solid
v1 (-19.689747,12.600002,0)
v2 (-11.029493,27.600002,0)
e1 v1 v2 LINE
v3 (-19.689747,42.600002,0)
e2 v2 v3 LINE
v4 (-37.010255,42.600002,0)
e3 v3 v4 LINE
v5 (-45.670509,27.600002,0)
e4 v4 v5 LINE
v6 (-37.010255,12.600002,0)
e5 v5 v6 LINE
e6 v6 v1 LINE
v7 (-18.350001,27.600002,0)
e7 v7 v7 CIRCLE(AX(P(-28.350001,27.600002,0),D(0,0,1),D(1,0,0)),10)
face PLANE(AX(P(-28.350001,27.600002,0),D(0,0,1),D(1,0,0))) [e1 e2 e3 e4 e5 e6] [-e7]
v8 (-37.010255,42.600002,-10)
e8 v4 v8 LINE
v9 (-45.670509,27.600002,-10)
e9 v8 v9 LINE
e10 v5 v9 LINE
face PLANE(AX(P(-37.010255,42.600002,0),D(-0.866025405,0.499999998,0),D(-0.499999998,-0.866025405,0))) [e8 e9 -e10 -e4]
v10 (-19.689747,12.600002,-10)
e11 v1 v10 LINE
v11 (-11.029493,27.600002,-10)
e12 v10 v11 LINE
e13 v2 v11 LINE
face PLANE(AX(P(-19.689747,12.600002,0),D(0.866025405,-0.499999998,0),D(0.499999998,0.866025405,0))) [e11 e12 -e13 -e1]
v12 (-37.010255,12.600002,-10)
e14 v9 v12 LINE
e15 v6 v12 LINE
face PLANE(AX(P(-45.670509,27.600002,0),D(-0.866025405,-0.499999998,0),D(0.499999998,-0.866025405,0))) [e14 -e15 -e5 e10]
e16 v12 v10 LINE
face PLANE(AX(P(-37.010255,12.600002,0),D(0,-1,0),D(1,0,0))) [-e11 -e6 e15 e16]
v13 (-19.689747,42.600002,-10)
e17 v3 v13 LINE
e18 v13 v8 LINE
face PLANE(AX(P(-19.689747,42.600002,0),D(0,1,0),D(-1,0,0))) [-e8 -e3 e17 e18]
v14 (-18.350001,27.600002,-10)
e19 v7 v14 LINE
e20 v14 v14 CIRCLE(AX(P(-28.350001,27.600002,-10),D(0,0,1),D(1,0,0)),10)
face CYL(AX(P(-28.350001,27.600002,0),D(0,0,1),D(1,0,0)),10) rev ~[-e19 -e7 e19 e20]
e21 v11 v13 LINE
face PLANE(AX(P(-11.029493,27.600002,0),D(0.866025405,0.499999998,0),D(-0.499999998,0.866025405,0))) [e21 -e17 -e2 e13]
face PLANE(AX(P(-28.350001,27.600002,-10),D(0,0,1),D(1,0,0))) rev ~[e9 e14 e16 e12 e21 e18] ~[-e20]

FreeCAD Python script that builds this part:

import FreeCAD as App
import Part
import Sketcher
Q = App.Units.Quantity

doc = App.newDocument("Part")
body = doc.addObject("PartDesign::Body", "Body")

# Sketch on XY plane
sketch1 = body.newObject("Sketcher::SketchObject", "Sketch")
sketch1.AttachmentSupport = (doc.getObject("XY_Plane"), [""])
sketch1.MapMode = "FlatFace"
sketch1.addGeometry(Part.LineSegment(App.Vector(-37.010255, 12.600002, 0), App.Vector(-19.689747, 12.600002, 0)), False)
sketch1.addGeometry(Part.LineSegment(App.Vector(-19.689747, 12.600002, 0), App.Vector(-11.029493, 27.600002, 0)), False)
sketch1.addGeometry(Part.LineSegment(App.Vector(-11.029493, 27.600002, 0), App.Vector(-19.689747, 42.600002, 0)), False)
sketch1.addGeometry(Part.LineSegment(App.Vector(-19.689747, 42.600002, 0), App.Vector(-37.010255, 42.600002, 0)), False)
sketch1.addGeometry(Part.LineSegment(App.Vector(-37.010255, 42.600002, 0), App.Vector(-45.670509, 27.600002, 0)), False)
sketch1.addGeometry(Part.LineSegment(App.Vector(-45.670509, 27.600002, 0), App.Vector(-37.010255, 12.600002, 0)), False)
sketch1.addGeometry(Part.Circle(App.Vector(-28.350001, 27.600002, 0), App.Vector(0, 0, 1), 10), False)
sketch1.addConstraint(Sketcher.Constraint("Coincident", 0, 2, 1, 1))
sketch1.addConstraint(Sketcher.Constraint("Coincident", 1, 2, 2, 1))
sketch1.addConstraint(Sketcher.Constraint("Coincident", 2, 2, 3, 1))
sketch1.addConstraint(Sketcher.Constraint("Coincident", 3, 2, 4, 1))
sketch1.addConstraint(Sketcher.Constraint("Coincident", 4, 2, 5, 1))
sketch1.addConstraint(Sketcher.Constraint("Coincident", 5, 2, 0, 1))
sketch1.addConstraint(Sketcher.Constraint("Horizontal", 0))
sketch1.addConstraint(Sketcher.Constraint("Horizontal", 3))
sketch1.addConstraint(Sketcher.Constraint("Parallel", 1, 4))
sketch1.addConstraint(Sketcher.Constraint("Parallel", 2, 5))
sketch1.addConstraint(Sketcher.Constraint("Horizontal", 6, 3, 1, 2))
sketch1.addConstraint(Sketcher.Constraint("Horizontal", 1, 2, 4, 2))
sketch1.addConstraint(Sketcher.Constraint("Vertical", 0, 2, 2, 2))
sketch1.addConstraint(Sketcher.Constraint("Vertical", 3, 2, 5, 2))
sketch1.addConstraint(Sketcher.Constraint("Diameter", 6, 20.0))
sketch1.addConstraint(Sketcher.Constraint("Angle", 1, Q("60 deg")))
sketch1.addConstraint(Sketcher.Constraint("DistanceY", 0, 2, 6, 3, 15.0))
sketch1.addConstraint(Sketcher.Constraint("DistanceY", -1, 1, 6, 3, 27.600002))
sketch1.addConstraint(Sketcher.Constraint("DistanceX", 6, 3, -1, 1, 28.350001))
sketch1.addConstraint(Sketcher.Constraint("DistanceX", 0, 1, 0, 2, 17.320508))
sketch1.addConstraint(Sketcher.Constraint("DistanceX", 4, 2, -1, 1, 45.670509))
pad1 = body.newObject("PartDesign::Pad", "Pad")
pad1.Profile = sketch1
pad1.Length = 10
pad1.Reversed = True

doc.recompute()
